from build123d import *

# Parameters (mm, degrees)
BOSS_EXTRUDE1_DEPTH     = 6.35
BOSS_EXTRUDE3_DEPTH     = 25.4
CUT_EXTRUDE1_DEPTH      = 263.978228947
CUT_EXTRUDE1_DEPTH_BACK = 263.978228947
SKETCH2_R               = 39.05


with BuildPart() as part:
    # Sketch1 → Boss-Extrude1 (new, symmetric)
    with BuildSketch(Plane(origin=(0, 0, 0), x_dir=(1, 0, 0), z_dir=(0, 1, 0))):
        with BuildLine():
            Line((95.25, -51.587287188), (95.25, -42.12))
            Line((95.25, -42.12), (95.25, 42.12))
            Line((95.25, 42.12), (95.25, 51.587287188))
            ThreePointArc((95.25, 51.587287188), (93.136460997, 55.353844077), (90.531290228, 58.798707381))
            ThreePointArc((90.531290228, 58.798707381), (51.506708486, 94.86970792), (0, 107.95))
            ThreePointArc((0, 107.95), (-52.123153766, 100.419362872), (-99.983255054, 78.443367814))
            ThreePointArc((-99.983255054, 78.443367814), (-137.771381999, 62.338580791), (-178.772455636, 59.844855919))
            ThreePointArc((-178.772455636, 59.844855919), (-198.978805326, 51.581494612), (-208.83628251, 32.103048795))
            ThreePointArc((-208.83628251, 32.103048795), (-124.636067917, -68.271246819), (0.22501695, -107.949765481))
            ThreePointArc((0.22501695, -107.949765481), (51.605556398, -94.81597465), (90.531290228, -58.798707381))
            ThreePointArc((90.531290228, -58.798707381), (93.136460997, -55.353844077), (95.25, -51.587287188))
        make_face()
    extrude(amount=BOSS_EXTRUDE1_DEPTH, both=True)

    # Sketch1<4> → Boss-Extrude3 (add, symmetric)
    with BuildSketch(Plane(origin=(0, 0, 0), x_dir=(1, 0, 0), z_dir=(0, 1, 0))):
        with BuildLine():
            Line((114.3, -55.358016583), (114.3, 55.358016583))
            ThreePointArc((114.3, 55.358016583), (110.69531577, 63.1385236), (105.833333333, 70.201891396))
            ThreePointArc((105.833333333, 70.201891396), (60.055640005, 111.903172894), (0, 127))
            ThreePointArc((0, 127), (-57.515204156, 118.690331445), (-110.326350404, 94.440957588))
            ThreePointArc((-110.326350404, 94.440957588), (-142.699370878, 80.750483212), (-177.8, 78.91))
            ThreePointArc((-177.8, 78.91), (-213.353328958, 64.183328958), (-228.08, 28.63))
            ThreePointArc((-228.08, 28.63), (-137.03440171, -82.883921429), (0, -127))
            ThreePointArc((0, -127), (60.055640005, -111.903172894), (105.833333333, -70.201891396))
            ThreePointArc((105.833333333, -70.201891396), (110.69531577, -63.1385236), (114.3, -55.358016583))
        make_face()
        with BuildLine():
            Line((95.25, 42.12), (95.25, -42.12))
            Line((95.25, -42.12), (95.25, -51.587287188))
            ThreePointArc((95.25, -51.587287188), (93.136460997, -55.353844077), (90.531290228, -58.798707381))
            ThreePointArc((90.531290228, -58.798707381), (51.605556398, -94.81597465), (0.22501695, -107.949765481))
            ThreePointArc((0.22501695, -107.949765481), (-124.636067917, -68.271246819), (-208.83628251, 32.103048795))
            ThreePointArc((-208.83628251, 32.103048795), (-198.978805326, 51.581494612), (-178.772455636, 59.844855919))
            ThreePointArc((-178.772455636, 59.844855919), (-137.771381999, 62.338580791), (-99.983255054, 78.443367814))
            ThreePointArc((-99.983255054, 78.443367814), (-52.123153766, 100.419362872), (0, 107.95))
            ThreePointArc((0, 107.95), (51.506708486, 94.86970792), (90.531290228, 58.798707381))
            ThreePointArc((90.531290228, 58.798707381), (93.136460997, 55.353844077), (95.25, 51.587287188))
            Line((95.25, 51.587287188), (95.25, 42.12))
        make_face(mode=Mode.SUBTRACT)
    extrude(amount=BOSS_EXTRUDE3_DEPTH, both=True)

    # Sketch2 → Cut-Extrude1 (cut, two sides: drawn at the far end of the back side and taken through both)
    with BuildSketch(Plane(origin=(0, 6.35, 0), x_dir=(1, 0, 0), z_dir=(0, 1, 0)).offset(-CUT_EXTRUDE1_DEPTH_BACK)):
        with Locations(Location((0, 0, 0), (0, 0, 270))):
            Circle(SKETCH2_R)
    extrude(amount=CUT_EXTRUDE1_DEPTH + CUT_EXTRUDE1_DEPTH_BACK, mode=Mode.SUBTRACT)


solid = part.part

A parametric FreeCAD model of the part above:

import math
import FreeCAD as App
import Part
import Sketcher

V = App.Vector
Q = App.Units.Quantity

doc = App.newDocument("Part")
body = doc.addObject("PartDesign::Body", "Body")

sketch1 = body.newObject("Sketcher::SketchObject", "Sketch")
sketch1.AttachmentSupport = (doc.getObject("XZ_Plane"), [""])
sketch1.MapMode = "FlatFace"
sketch1.addGeometry([
    Part.LineSegment(V(95.25, 51.587287, 0), V(95.25, -51.587287, 0)),
    Part.ArcOfCircle(Part.Circle(V(66.568668, -37.969515, 0), V(0, 0, 1), 31.75), math.radians(-40.99837), math.radians(-25.398166)),
    Part.ArcOfCircle(Part.Circle(V(0, 0, 0), V(0, 0, 1), 107.95), math.radians(-90), math.radians(-33.003116)),
    Part.ArcOfCircle(Part.Circle(V(0, 76.2, 0), V(0, 0, 1), 184.15), math.radians(-122.884319), math.radians(-90)),
    Part.ArcOfCircle(Part.Circle(V(-165.489526, -179.761436, 0), V(0, 0, 1), 120.65), math.radians(57.115681), math.radians(96.320777)),
    Part.ArcOfCircle(Part.Circle(V(-177.8, -28.63, 0), V(0, 0, 1), 31.23), math.radians(-173.615001), math.radians(-91.784394)),
    Part.ArcOfCircle(Part.Circle(V(6.12907, -126.926041, 0), V(0, 0, 1), 234.95), math.radians(91.439936), math.radians(156.197328)),
    Part.ArcOfCircle(Part.Circle(V(0, 0, 0), V(0, 0, 1), 107.95), math.radians(33.003116), math.radians(89.880569)),
    Part.ArcOfCircle(Part.Circle(V(66.568668, 37.969515, 0), V(0, 0, 1), 31.75), math.radians(25.398166), math.radians(40.99837)),
], False)
sketch1.addConstraint([
    Sketcher.Constraint("Coincident", 0, 2, 1, 2),
    Sketcher.Constraint("Coincident", 1, 1, 2, 2),
    Sketcher.Constraint("Tangent", 2, 1, 3, 2),
    Sketcher.Constraint("Tangent", 3, 1, 4, 1),
    Sketcher.Constraint("Coincident", 4, 2, 5, 2),
    Sketcher.Constraint("Coincident", 5, 1, 6, 2),
    Sketcher.Constraint("Coincident", 6, 1, 7, 2),
    Sketcher.Constraint("Coincident", 7, 1, 8, 2),
    Sketcher.Constraint("Coincident", 8, 1, 0, 1),
    Sketcher.Constraint("Vertical", 0),
    Sketcher.Constraint("Coincident", 2, 3, -1, 1),
    Sketcher.Constraint("Coincident", 7, 3, -1, 1),
    Sketcher.Constraint("Equal", 2, 7),
    Sketcher.Constraint("Equal", 1, 8),
    Sketcher.Constraint("Symmetric", 1, 3, 8, 3, -1),
    Sketcher.Constraint("PointOnObject", 3, 3, -2),
    Sketcher.Constraint("Radius", 1, Q("1.25 in")),
    Sketcher.Constraint("Radius", 2, Q("4.25 in")),
    Sketcher.Constraint("Radius", 3, Q("7.25 in")),
    Sketcher.Constraint("Radius", 4, Q("4.75 in")),
    Sketcher.Constraint("Radius", 6, Q("9.25 in")),
    Sketcher.Constraint("DistanceX", 5, 3, -1, 1, Q("7 in")),
    Sketcher.Constraint("DistanceX", -1, 1, 0, 2, Q("3.75 in")),
    Sketcher.Constraint("Radius", 5, Q("31.23 mm")),
    Sketcher.Constraint("DistanceY", 5, 3, -1, 1, Q("28.63 mm")),
    Sketcher.Constraint("DistanceX", 6, 3, 1, 3, Q("60.439599 mm")),
    Sketcher.Constraint("DistanceX", 4, 2, 3, 1, Q("78.789201 mm")),
    Sketcher.Constraint("DistanceY", 0, 2, 0, 1, Q("103.174574 mm")),
    Sketcher.Constraint("DistanceX", -1, 1, 1, 3, Q("66.568668 mm")),
    Sketcher.Constraint("DistanceY", 6, 3, -1, 1, Q("126.926041 mm")),
])
pad1 = body.newObject("PartDesign::Pad", "Pad")
pad1.Profile = sketch1
pad1.Length = Q("0.5 in")
pad1.Midplane = True

sketch2 = body.newObject("Sketcher::SketchObject", "Sketch001")
sketch2.AttachmentSupport = (doc.getObject("XZ_Plane"), [""])
sketch2.MapMode = "FlatFace"
sketch2.addGeometry([
    Part.LineSegment(V(114.3, 55.358017, 0), V(114.3, -55.358017, 0)),
    Part.ArcOfCircle(Part.Circle(V(66.568668, -37.969515, 0), V(0, 0, 1), 50.8), math.radians(-39.382584), math.radians(-20.016658)),
    Part.ArcOfCircle(Part.Circle(V(0, 0, 0), V(0, 0, 1), 127), math.radians(-90), math.radians(-33.55731)),
    Part.ArcOfCircle(Part.Circle(V(0, 76.2, 0), V(0, 0, 1), 203.2), math.radians(-122.884319), math.radians(-90)),
    Part.ArcOfCircle(Part.Circle(V(-165.489526, -179.761436, 0), V(0, 0, 1), 101.6), math.radians(57.115681), math.radians(96.959406)),
    Part.ArcOfCircle(Part.Circle(V(-177.8, -28.63, 0), V(0, 0, 1), 50.28), math.radians(180), math.radians(270)),
    Part.ArcOfCircle(Part.Circle(V(6.12907, -126.926041, 0), V(0, 0, 1), 254), math.radians(91.382693), math.radians(157.23252)),
    Part.ArcOfCircle(Part.Circle(V(0, 0, 0), V(0, 0, 1), 127), math.radians(33.55731), math.radians(90)),
    Part.ArcOfCircle(Part.Circle(V(66.568668, 37.969515, 0), V(0, 0, 1), 50.8), math.radians(20.016658), math.radians(39.382584)),
    Part.LineSegment(V(95.25, -51.587287, 0), V(95.25, 51.587287, 0)),
    Part.ArcOfCircle(Part.Circle(V(66.568668, 37.969515, 0), V(0, 0, 1), 31.75), math.radians(25.398166), math.radians(40.99837)),
    Part.ArcOfCircle(Part.Circle(V(0, 0, 0), V(0, 0, 1), 107.95), math.radians(33.003116), math.radians(89.880569)),
    Part.ArcOfCircle(Part.Circle(V(6.12907, -126.926041, 0), V(0, 0, 1), 234.95), math.radians(91.439936), math.radians(156.197328)),
    Part.ArcOfCircle(Part.Circle(V(-177.8, -28.63, 0), V(0, 0, 1), 31.23), math.radians(-173.615001), math.radians(-91.784394)),
    Part.ArcOfCircle(Part.Circle(V(-165.489526, -179.761436, 0), V(0, 0, 1), 120.65), math.radians(57.115681), math.radians(96.320777)),
    Part.ArcOfCircle(Part.Circle(V(0, 76.2, 0), V(0, 0, 1), 184.15), math.radians(-122.884319), math.radians(-90)),
    Part.ArcOfCircle(Part.Circle(V(0, 0, 0), V(0, 0, 1), 107.95), math.radians(-90), math.radians(-33.003116)),
    Part.ArcOfCircle(Part.Circle(V(66.568668, -37.969515, 0), V(0, 0, 1), 31.75), math.radians(-40.99837), math.radians(-25.398166)),
], False)
sketch2.addConstraint([
    Sketcher.Constraint("Coincident", 0, 2, 1, 2),
    Sketcher.Constraint("Coincident", 1, 1, 2, 2),
    Sketcher.Constraint("Tangent", 2, 1, 3, 2),
    Sketcher.Constraint("Tangent", 3, 1, 4, 1),
    Sketcher.Constraint("Coincident", 4, 2, 5, 2),
    Sketcher.Constraint("Coincident", 5, 1, 6, 2),
    Sketcher.Constraint("Coincident", 6, 1, 7, 2),
    Sketcher.Constraint("Coincident", 7, 1, 8, 2),
    Sketcher.Constraint("Coincident", 8, 1, 0, 1),
    Sketcher.Constraint("Coincident", 9, 2, 10, 1),
    Sketcher.Constraint("Coincident", 10, 2, 11, 1),
    Sketcher.Constraint("Coincident", 11, 2, 12, 1),
    Sketcher.Constraint("Coincident", 12, 2, 13, 1),
    Sketcher.Constraint("Coincident", 13, 2, 14, 2),
    Sketcher.Constraint("Tangent", 14, 1, 15, 1),
    Sketcher.Constraint("Tangent", 15, 2, 16, 1),
    Sketcher.Constraint("Coincident", 16, 2, 17, 1),
    Sketcher.Constraint("Coincident", 17, 2, 9, 1),
    Sketcher.Constraint("Vertical", 0),
    Sketcher.Constraint("Vertical", 9),
    Sketcher.Constraint("Coincident", 2, 3, -1, 1),
    Sketcher.Constraint("Coincident", 7, 3, -1, 1),
    Sketcher.Constraint("Coincident", 11, 3, -1, 1),
    Sketcher.Constraint("Coincident", 16, 3, -1, 1),
    Sketcher.Constraint("Coincident", 10, 3, 8, 3),
    Sketcher.Constraint("Coincident", 12, 3, 6, 3),
    Sketcher.Constraint("Coincident", 13, 3, 5, 3),
    Sketcher.Constraint("Coincident", 14, 3, 4, 3),
    Sketcher.Constraint("Coincident", 15, 3, 3, 3),
    Sketcher.Constraint("Coincident", 17, 3, 1, 3),
    Sketcher.Constraint("Equal", 2, 7),
    Sketcher.Constraint("Equal", 1, 8),
    Sketcher.Constraint("Equal", 11, 16),
    Sketcher.Constraint("Equal", 10, 17),
    Sketcher.Constraint("Symmetric", 1, 3, 8, 3, -1),
    Sketcher.Constraint("PointOnObject", 3, 3, -2),
    Sketcher.Constraint("PointOnObject", 6, 1, -2),
    Sketcher.Constraint("Horizontal", 13, 3, 5, 1),
    Sketcher.Constraint("Vertical", 13, 3, 4, 2),
    Sketcher.Constraint("Radius", 1, Q("2 in")),
    Sketcher.Constraint("Radius", 2, Q("5 in")),
    Sketcher.Constraint("Radius", 3, Q("8 in")),
    Sketcher.Constraint("Radius", 4, Q("4 in")),
    Sketcher.Constraint("Radius", 6, Q("10 in")),
    Sketcher.Constraint("Radius", 10, Q("1.25 in")),
    Sketcher.Constraint("Radius", 11, Q("4.25 in")),
    Sketcher.Constraint("Radius", 12, Q("9.25 in")),
    Sketcher.Constraint("DistanceX", 5, 3, -1, 1, Q("7 in")),
    Sketcher.Constraint("DistanceX", -1, 1, 0, 2, Q("4.5 in")),
    Sketcher.Constraint("DistanceX", -1, 1, 9, 2, Q("3.75 in")),
    Sketcher.Constraint("Radius", 5, Q("50.28 mm")),
    Sketcher.Constraint("Radius", 13, Q("31.23 mm")),
    Sketcher.Constraint("DistanceY", 5, 3, -1, 1, Q("28.63 mm")),
    Sketcher.Constraint("DistanceX", 6, 3, 1, 3, Q("60.439599 mm")),
    Sketcher.Constraint("DistanceY", 0, 2, 0, 1, Q("110.716033 mm")),
])
pad2 = body.newObject("PartDesign::Pad", "Pad001")
pad2.Profile = sketch2
pad2.Length = Q("2 in")
pad2.Midplane = True

sketch3 = body.newObject("Sketcher::SketchObject", "Sketch002")
sketch3.AttachmentSupport = (doc.getObject("XZ_Plane"), [""])
sketch3.MapMode = "FlatFace"
sketch3.AttachmentOffset = App.Placement(V(0, 0, -0.25 * 25.4), App.Rotation())
sketch3.addGeometry(Part.Circle(V(0, 0, 0), V(0, 0, 1), 39.05), False)
sketch3.addConstraint([
    Sketcher.Constraint("Coincident", 0, 3, -1, 1),
    Sketcher.Constraint("Diameter", 0, Q("78.1 mm")),
])
pocket1 = body.newObject("PartDesign::Pocket", "Pocket")
pocket1.Profile = sketch3
pocket1.Type = "ThroughAll"
pocket1.Midplane = True

doc.recompute()
